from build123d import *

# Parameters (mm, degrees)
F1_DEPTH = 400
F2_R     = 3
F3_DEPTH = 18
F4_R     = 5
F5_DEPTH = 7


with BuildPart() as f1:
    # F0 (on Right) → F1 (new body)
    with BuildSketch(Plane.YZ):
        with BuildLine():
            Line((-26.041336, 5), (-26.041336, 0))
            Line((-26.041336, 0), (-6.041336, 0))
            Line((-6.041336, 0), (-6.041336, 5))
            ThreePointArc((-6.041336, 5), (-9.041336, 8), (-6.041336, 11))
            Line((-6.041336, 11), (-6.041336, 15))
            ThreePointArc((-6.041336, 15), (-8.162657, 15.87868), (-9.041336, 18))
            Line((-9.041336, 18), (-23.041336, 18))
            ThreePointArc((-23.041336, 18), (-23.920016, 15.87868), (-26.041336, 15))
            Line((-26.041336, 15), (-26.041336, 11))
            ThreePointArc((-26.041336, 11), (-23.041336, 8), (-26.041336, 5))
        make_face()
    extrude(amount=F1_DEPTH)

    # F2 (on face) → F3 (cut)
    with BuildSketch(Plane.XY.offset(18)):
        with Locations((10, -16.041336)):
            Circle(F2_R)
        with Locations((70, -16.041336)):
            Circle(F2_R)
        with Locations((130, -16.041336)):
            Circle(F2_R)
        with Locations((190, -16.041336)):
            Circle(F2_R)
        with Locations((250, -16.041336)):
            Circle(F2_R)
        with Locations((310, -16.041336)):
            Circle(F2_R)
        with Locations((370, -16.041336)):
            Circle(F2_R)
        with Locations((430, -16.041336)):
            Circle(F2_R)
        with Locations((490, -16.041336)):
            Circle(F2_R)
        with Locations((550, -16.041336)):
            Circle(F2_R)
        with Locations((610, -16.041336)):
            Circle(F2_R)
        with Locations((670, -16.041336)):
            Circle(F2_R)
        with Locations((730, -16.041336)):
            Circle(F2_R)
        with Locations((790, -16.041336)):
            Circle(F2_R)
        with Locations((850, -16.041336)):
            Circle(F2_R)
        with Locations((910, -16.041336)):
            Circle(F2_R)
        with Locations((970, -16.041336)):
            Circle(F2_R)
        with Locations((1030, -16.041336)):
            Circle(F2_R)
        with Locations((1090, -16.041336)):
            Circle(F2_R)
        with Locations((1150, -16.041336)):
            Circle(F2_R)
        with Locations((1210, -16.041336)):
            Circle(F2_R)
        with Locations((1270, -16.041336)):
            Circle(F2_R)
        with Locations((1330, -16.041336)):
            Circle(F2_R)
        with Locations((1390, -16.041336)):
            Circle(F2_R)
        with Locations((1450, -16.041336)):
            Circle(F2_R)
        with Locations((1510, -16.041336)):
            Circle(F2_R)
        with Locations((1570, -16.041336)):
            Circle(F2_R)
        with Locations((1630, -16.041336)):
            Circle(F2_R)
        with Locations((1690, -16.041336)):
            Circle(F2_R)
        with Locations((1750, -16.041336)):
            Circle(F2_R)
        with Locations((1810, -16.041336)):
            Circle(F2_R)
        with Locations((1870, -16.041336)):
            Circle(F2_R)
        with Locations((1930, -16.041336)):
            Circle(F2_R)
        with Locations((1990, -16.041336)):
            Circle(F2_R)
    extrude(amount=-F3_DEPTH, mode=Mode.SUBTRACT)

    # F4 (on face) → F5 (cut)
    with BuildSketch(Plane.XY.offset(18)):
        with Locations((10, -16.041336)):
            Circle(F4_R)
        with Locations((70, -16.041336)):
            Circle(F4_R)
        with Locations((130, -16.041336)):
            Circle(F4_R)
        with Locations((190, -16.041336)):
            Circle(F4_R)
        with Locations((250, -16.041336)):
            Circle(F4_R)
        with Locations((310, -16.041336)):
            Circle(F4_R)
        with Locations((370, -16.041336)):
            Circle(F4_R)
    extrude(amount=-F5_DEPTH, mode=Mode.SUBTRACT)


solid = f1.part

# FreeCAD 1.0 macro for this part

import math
import FreeCAD as App
import Part
import Sketcher

doc = App.newDocument("Part")
params = doc.addObject("Spreadsheet::Sheet", "Params")
for row, (alias, value) in enumerate([
    ("sketch1_radius", "3 mm"),
    ("sketch1_width", "20 mm"),
    ("sketch1_height", "5 mm"),
    ("sketch1_height2", "4 mm"),
    ("pad1_length", "400 mm"),
    ("sketch2_diameter", "6 mm"),
    ("pocket1_length", "18 mm"),
    ("sketch3_diameter", "10 mm"),
    ("pocket2_length", "7 mm"),
], start=1):
    params.set(f"A{row}", alias)
    params.set(f"B{row}", "=" + value)
    params.setAlias(f"B{row}", alias)

body = doc.addObject("PartDesign::Body", "Body")

sketch1 = body.newObject("Sketcher::SketchObject", "Sketch")
sketch1.AttachmentSupport = (doc.getObject("YZ_Plane"), [""])
sketch1.MapMode = "FlatFace"
sketch1.addGeometry([
    Part.LineSegment(App.Vector(-26, 5, 0), App.Vector(-26, 0, 0)),
    Part.LineSegment(App.Vector(-26, 0, 0), App.Vector(-6, 0, 0)),
    Part.LineSegment(App.Vector(-6, 0, 0), App.Vector(-6, 5, 0)),
    Part.ArcOfCircle(Part.Circle(App.Vector(-6, 8, 0), App.Vector(0, 0, 1), 3), math.radians(90), math.radians(270)),
    Part.LineSegment(App.Vector(-6, 11, 0), App.Vector(-6, 15, 0)),
    Part.ArcOfCircle(Part.Circle(App.Vector(-6, 18, 0), App.Vector(0, 0, 1), 3), math.radians(180), math.radians(270)),
    Part.LineSegment(App.Vector(-9, 18, 0), App.Vector(-23, 18, 0)),
    Part.ArcOfCircle(Part.Circle(App.Vector(-26, 18, 0), App.Vector(0, 0, 1), 3), math.radians(-90), math.radians(0)),
    Part.LineSegment(App.Vector(-26, 15, 0), App.Vector(-26, 11, 0)),
    Part.ArcOfCircle(Part.Circle(App.Vector(-26, 8, 0), App.Vector(0, 0, 1), 3), math.radians(-90), math.radians(90)),
], False)
sketch1.addConstraint([
    Sketcher.Constraint("Coincident", 0, 2, 1, 1),
    Sketcher.Constraint("Coincident", 1, 2, 2, 1),
    Sketcher.Constraint("Coincident", 2, 2, 3, 2),
    Sketcher.Constraint("Coincident", 3, 1, 4, 1),
    Sketcher.Constraint("Coincident", 4, 2, 5, 2),
    Sketcher.Constraint("Coincident", 5, 1, 6, 1),
    Sketcher.Constraint("Coincident", 6, 2, 7, 2),
    Sketcher.Constraint("Coincident", 7, 1, 8, 1),
    Sketcher.Constraint("Coincident", 8, 2, 9, 2),
    Sketcher.Constraint("Coincident", 9, 1, 0, 1),
    Sketcher.Constraint("Vertical", 0),
    Sketcher.Constraint("Horizontal", 1),
    Sketcher.Constraint("Vertical", 2),
    Sketcher.Constraint("Vertical", 4),
    Sketcher.Constraint("Horizontal", 6),
    Sketcher.Constraint("Vertical", 8),
    Sketcher.Constraint("Equal", 3, 5),
    Sketcher.Constraint("Equal", 5, 7),
    Sketcher.Constraint("Equal", 7, 9),
    Sketcher.Constraint("PointOnObject", 0, 2, -1),
    Sketcher.Constraint("Horizontal", 5, 3, 7, 3),
    Sketcher.Constraint("Horizontal", 3, 3, 9, 3),
    Sketcher.Constraint("Horizontal", 7, 3, 5, 1),
    Sketcher.Constraint("Vertical", 3, 3, 5, 3),
    Sketcher.Constraint("Vertical", 7, 3, 9, 3),
    Sketcher.Constraint("Vertical", 9, 3, 0, 2),
    Sketcher.Constraint("Vertical", 5, 3, 1, 2),
    Sketcher.Constraint("Vertical", 2, 2, 3, 1),
    Sketcher.Constraint("Vertical", 0, 2, 7, 1),
    Sketcher.Constraint("Radius", 3, 3.0),
    Sketcher.Constraint("DistanceX", 1, 1, 1, 2, 20.0),
    Sketcher.Constraint("DistanceY", 0, 2, 0, 1, 5.0),
    Sketcher.Constraint("DistanceY", 4, 1, 4, 2, 4.0),
    Sketcher.Constraint("DistanceX", 3, 3, -1, 1, 6.041336),
])
sketch1.setExpression("Constraints[29]", "Params.sketch1_radius")
sketch1.setExpression("Constraints[30]", "Params.sketch1_width")
sketch1.setExpression("Constraints[31]", "Params.sketch1_height")
sketch1.setExpression("Constraints[32]", "Params.sketch1_height2")
pad1 = body.newObject("PartDesign::Pad", "Pad")
pad1.Profile = sketch1
pad1.setExpression("Length", "Params.pad1_length")

sketch2 = body.newObject("Sketcher::SketchObject", "Sketch001")
sketch2.AttachmentSupport = (doc.getObject("XY_Plane"), [""])
sketch2.MapMode = "FlatFace"
sketch2.AttachmentOffset = App.Placement(App.Vector(0, 0, 18), App.Rotation())
sketch2.addGeometry([
    Part.Circle(App.Vector(10, -16, 0), App.Vector(0, 0, 1), 3),
    Part.Circle(App.Vector(70, -16, 0), App.Vector(0, 0, 1), 3),
    Part.Circle(App.Vector(130, -16, 0), App.Vector(0, 0, 1), 3),
    Part.Circle(App.Vector(190, -16, 0), App.Vector(0, 0, 1), 3),
    Part.Circle(App.Vector(250, -16, 0), App.Vector(0, 0, 1), 3),
    Part.Circle(App.Vector(310, -16, 0), App.Vector(0, 0, 1), 3),
    Part.Circle(App.Vector(370, -16, 0), App.Vector(0, 0, 1), 3),
    Part.Circle(App.Vector(430, -16, 0), App.Vector(0, 0, 1), 3),
    Part.Circle(App.Vector(490, -16, 0), App.Vector(0, 0, 1), 3),
    Part.Circle(App.Vector(550, -16, 0), App.Vector(0, 0, 1), 3),
    Part.Circle(App.Vector(610, -16, 0), App.Vector(0, 0, 1), 3),
    Part.Circle(App.Vector(670, -16, 0), App.Vector(0, 0, 1), 3),
    Part.Circle(App.Vector(730, -16, 0), App.Vector(0, 0, 1), 3),
    Part.Circle(App.Vector(790, -16, 0), App.Vector(0, 0, 1), 3),
    Part.Circle(App.Vector(850, -16, 0), App.Vector(0, 0, 1), 3),
    Part.Circle(App.Vector(910, -16, 0), App.Vector(0, 0, 1), 3),
    Part.Circle(App.Vector(970, -16, 0), App.Vector(0, 0, 1), 3),
    Part.Circle(App.Vector(1030, -16, 0), App.Vector(0, 0, 1), 3),
    Part.Circle(App.Vector(1090, -16, 0), App.Vector(0, 0, 1), 3),
    Part.Circle(App.Vector(1150, -16, 0), App.Vector(0, 0, 1), 3),
    Part.Circle(App.Vector(1210, -16, 0), App.Vector(0, 0, 1), 3),
    Part.Circle(App.Vector(1270, -16, 0), App.Vector(0, 0, 1), 3),
    Part.Circle(App.Vector(1330, -16, 0), App.Vector(0, 0, 1), 3),
    Part.Circle(App.Vector(1390, -16, 0), App.Vector(0, 0, 1), 3),
    Part.Circle(App.Vector(1450, -16, 0), App.Vector(0, 0, 1), 3),
    Part.Circle(App.Vector(1510, -16, 0), App.Vector(0, 0, 1), 3),
    Part.Circle(App.Vector(1570, -16, 0), App.Vector(0, 0, 1), 3),
    Part.Circle(App.Vector(1630, -16, 0), App.Vector(0, 0, 1), 3),
    Part.Circle(App.Vector(1690, -16, 0), App.Vector(0, 0, 1), 3),
    Part.Circle(App.Vector(1750, -16, 0), App.Vector(0, 0, 1), 3),
    Part.Circle(App.Vector(1810, -16, 0), App.Vector(0, 0, 1), 3),
    Part.Circle(App.Vector(1870, -16, 0), App.Vector(0, 0, 1), 3),
    Part.Circle(App.Vector(1930, -16, 0), App.Vector(0, 0, 1), 3),
    Part.Circle(App.Vector(1990, -16, 0), App.Vector(0, 0, 1), 3),
], False)
sketch2.addConstraint([
    Sketcher.Constraint("Equal", 0, 1),
    Sketcher.Constraint("Equal", 1, 2),
    Sketcher.Constraint("Equal", 2, 3),
    Sketcher.Constraint("Equal", 3, 4),
    Sketcher.Constraint("Equal", 4, 5),
    Sketcher.Constraint("Equal", 5, 6),
    Sketcher.Constraint("Equal", 6, 7),
    Sketcher.Constraint("Equal", 7, 8),
    Sketcher.Constraint("Equal", 8, 9),
    Sketcher.Constraint("Equal", 9, 10),
    Sketcher.Constraint("Equal", 10, 11),
    Sketcher.Constraint("Equal", 11, 12),
    Sketcher.Constraint("Equal", 12, 13),
    Sketcher.Constraint("Equal", 13, 14),
    Sketcher.Constraint("Equal", 14, 15),
    Sketcher.Constraint("Equal", 15, 16),
    Sketcher.Constraint("Equal", 16, 17),
    Sketcher.Constraint("Equal", 17, 18),
    Sketcher.Constraint("Equal", 18, 19),
    Sketcher.Constraint("Equal", 19, 20),
    Sketcher.Constraint("Equal", 20, 21),
    Sketcher.Constraint("Equal", 21, 22),
    Sketcher.Constraint("Equal", 22, 23),
    Sketcher.Constraint("Equal", 23, 24),
    Sketcher.Constraint("Equal", 24, 25),
    Sketcher.Constraint("Equal", 25, 26),
    Sketcher.Constraint("Equal", 26, 27),
    Sketcher.Constraint("Equal", 27, 28),
    Sketcher.Constraint("Equal", 28, 29),
    Sketcher.Constraint("Equal", 29, 30),
    Sketcher.Constraint("Equal", 30, 31),
    Sketcher.Constraint("Equal", 31, 32),
    Sketcher.Constraint("Equal", 32, 33),
    Sketcher.Constraint("Horizontal", 0, 3, 1, 3),
    Sketcher.Constraint("Horizontal", 1, 3, 2, 3),
    Sketcher.Constraint("Horizontal", 2, 3, 3, 3),
    Sketcher.Constraint("Horizontal", 3, 3, 4, 3),
    Sketcher.Constraint("Horizontal", 4, 3, 5, 3),
    Sketcher.Constraint("Horizontal", 5, 3, 6, 3),
    Sketcher.Constraint("Horizontal", 6, 3, 7, 3),
    Sketcher.Constraint("Horizontal", 7, 3, 8, 3),
    Sketcher.Constraint("Horizontal", 8, 3, 9, 3),
    Sketcher.Constraint("Horizontal", 9, 3, 10, 3),
    Sketcher.Constraint("Horizontal", 10, 3, 11, 3),
    Sketcher.Constraint("Horizontal", 11, 3, 12, 3),
    Sketcher.Constraint("Horizontal", 12, 3, 13, 3),
    Sketcher.Constraint("Horizontal", 13, 3, 14, 3),
    Sketcher.Constraint("Horizontal", 14, 3, 15, 3),
    Sketcher.Constraint("Horizontal", 15, 3, 16, 3),
    Sketcher.Constraint("Horizontal", 16, 3, 17, 3),
    Sketcher.Constraint("Horizontal", 17, 3, 18, 3),
    Sketcher.Constraint("Horizontal", 18, 3, 19, 3),
    Sketcher.Constraint("Horizontal", 19, 3, 20, 3),
    Sketcher.Constraint("Horizontal", 20, 3, 21, 3),
    Sketcher.Constraint("Horizontal", 21, 3, 22, 3),
    Sketcher.Constraint("Horizontal", 22, 3, 23, 3),
    Sketcher.Constraint("Horizontal", 23, 3, 24, 3),
    Sketcher.Constraint("Horizontal", 24, 3, 25, 3),
    Sketcher.Constraint("Horizontal", 25, 3, 26, 3),
    Sketcher.Constraint("Horizontal", 26, 3, 27, 3),
    Sketcher.Constraint("Horizontal", 27, 3, 28, 3),
    Sketcher.Constraint("Horizontal", 28, 3, 29, 3),
    Sketcher.Constraint("Horizontal", 29, 3, 30, 3),
    Sketcher.Constraint("Horizontal", 30, 3, 31, 3),
    Sketcher.Constraint("Horizontal", 31, 3, 32, 3),
    Sketcher.Constraint("Horizontal", 32, 3, 33, 3),
    Sketcher.Constraint("Diameter", 0, 6.0),
    Sketcher.Constraint("DistanceX", -1, 1, 0, 3, 10.0),
    Sketcher.Constraint("DistanceX", -1, 1, 1, 3, 70.0),
    Sketcher.Constraint("DistanceX", -1, 1, 2, 3, 130.0),
    Sketcher.Constraint("DistanceX", -1, 1, 3, 3, 190.0),
    Sketcher.Constraint("DistanceX", -1, 1, 4, 3, 250.0),
    Sketcher.Constraint("DistanceX", -1, 1, 5, 3, 310.0),
    Sketcher.Constraint("DistanceX", -1, 1, 6, 3, 370.0),
    Sketcher.Constraint("DistanceX", -1, 1, 7, 3, 430.0),
    Sketcher.Constraint("DistanceX", -1, 1, 8, 3, 490.0),
    Sketcher.Constraint("DistanceX", -1, 1, 9, 3, 550.0),
    Sketcher.Constraint("DistanceX", -1, 1, 10, 3, 610.0),
    Sketcher.Constraint("DistanceX", -1, 1, 11, 3, 670.0),
    Sketcher.Constraint("DistanceX", -1, 1, 12, 3, 730.0),
    Sketcher.Constraint("DistanceX", -1, 1, 13, 3, 790.0),
    Sketcher.Constraint("DistanceX", -1, 1, 14, 3, 850.0),
    Sketcher.Constraint("DistanceX", -1, 1, 15, 3, 910.0),
    Sketcher.Constraint("DistanceX", -1, 1, 16, 3, 970.0),
    Sketcher.Constraint("DistanceX", -1, 1, 17, 3, 1030.0),
    Sketcher.Constraint("DistanceX", -1, 1, 18, 3, 1090.0),
    Sketcher.Constraint("DistanceX", -1, 1, 19, 3, 1150.0),
    Sketcher.Constraint("DistanceX", -1, 1, 20, 3, 1210.0),
    Sketcher.Constraint("DistanceX", -1, 1, 21, 3, 1270.0),
    Sketcher.Constraint("DistanceX", -1, 1, 22, 3, 1330.0),
    Sketcher.Constraint("DistanceX", -1, 1, 23, 3, 1390.0),
    Sketcher.Constraint("DistanceX", -1, 1, 24, 3, 1450.0),
    Sketcher.Constraint("DistanceX", -1, 1, 25, 3, 1510.0),
    Sketcher.Constraint("DistanceX", -1, 1, 26, 3, 1570.0),
    Sketcher.Constraint("DistanceX", -1, 1, 27, 3, 1630.0),
    Sketcher.Constraint("DistanceX", -1, 1, 28, 3, 1690.0),
    Sketcher.Constraint("DistanceX", -1, 1, 29, 3, 1750.0),
    Sketcher.Constraint("DistanceX", -1, 1, 30, 3, 1810.0),
    Sketcher.Constraint("DistanceX", -1, 1, 31, 3, 1870.0),
    Sketcher.Constraint("DistanceX", -1, 1, 32, 3, 1930.0),
    Sketcher.Constraint("DistanceX", -1, 1, 33, 3, 1990.0),
    Sketcher.Constraint("DistanceY", 0, 3, -1, 1, 16.041336),
])
sketch2.setExpression("Constraints[66]", "Params.sketch2_diameter")
pocket1 = body.newObject("PartDesign::Pocket", "Pocket")
pocket1.Profile = sketch2
pocket1.setExpression("Length", "Params.pocket1_length")

sketch3 = body.newObject("Sketcher::SketchObject", "Sketch002")
sketch3.AttachmentSupport = (doc.getObject("XY_Plane"), [""])
sketch3.MapMode = "FlatFace"
sketch3.AttachmentOffset = App.Placement(App.Vector(0, 0, 18), App.Rotation())
sketch3.addGeometry([
    Part.Circle(App.Vector(10, -16, 0), App.Vector(0, 0, 1), 5),
    Part.Circle(App.Vector(70, -16, 0), App.Vector(0, 0, 1), 5),
    Part.Circle(App.Vector(130, -16, 0), App.Vector(0, 0, 1), 5),
    Part.Circle(App.Vector(190, -16, 0), App.Vector(0, 0, 1), 5),
    Part.Circle(App.Vector(250, -16, 0), App.Vector(0, 0, 1), 5),
    Part.Circle(App.Vector(310, -16, 0), App.Vector(0, 0, 1), 5),
    Part.Circle(App.Vector(370, -16, 0), App.Vector(0, 0, 1), 5),
], False)
sketch3.addConstraint([
    Sketcher.Constraint("Equal", 0, 1),
    Sketcher.Constraint("Equal", 1, 2),
    Sketcher.Constraint("Equal", 2, 3),
    Sketcher.Constraint("Equal", 3, 4),
    Sketcher.Constraint("Equal", 4, 5),
    Sketcher.Constraint("Equal", 5, 6),
    Sketcher.Constraint("Horizontal", 0, 3, 1, 3),
    Sketcher.Constraint("Horizontal", 1, 3, 2, 3),
    Sketcher.Constraint("Horizontal", 2, 3, 3, 3),
    Sketcher.Constraint("Horizontal", 3, 3, 4, 3),
    Sketcher.Constraint("Horizontal", 4, 3, 5, 3),
    Sketcher.Constraint("Horizontal", 5, 3, 6, 3),
    Sketcher.Constraint("Diameter", 0, 10.0),
    Sketcher.Constraint("DistanceX", -1, 1, 0, 3, 10.0),
    Sketcher.Constraint("DistanceX", -1, 1, 1, 3, 70.0),
    Sketcher.Constraint("DistanceX", -1, 1, 2, 3, 130.0),
    Sketcher.Constraint("DistanceX", -1, 1, 3, 3, 190.0),
    Sketcher.Constraint("DistanceX", -1, 1, 4, 3, 250.0),
    Sketcher.Constraint("DistanceX", -1, 1, 5, 3, 310.0),
    Sketcher.Constraint("DistanceX", -1, 1, 6, 3, 370.0),
    Sketcher.Constraint("DistanceY", 0, 3, -1, 1, 16.041336),
])
sketch3.setExpression("Constraints[12]", "Params.sketch3_diameter")
pocket2 = body.newObject("PartDesign::Pocket", "Pocket001")
pocket2.Profile = sketch3
pocket2.setExpression("Length", "Params.pocket2_length")

doc.recompute()
